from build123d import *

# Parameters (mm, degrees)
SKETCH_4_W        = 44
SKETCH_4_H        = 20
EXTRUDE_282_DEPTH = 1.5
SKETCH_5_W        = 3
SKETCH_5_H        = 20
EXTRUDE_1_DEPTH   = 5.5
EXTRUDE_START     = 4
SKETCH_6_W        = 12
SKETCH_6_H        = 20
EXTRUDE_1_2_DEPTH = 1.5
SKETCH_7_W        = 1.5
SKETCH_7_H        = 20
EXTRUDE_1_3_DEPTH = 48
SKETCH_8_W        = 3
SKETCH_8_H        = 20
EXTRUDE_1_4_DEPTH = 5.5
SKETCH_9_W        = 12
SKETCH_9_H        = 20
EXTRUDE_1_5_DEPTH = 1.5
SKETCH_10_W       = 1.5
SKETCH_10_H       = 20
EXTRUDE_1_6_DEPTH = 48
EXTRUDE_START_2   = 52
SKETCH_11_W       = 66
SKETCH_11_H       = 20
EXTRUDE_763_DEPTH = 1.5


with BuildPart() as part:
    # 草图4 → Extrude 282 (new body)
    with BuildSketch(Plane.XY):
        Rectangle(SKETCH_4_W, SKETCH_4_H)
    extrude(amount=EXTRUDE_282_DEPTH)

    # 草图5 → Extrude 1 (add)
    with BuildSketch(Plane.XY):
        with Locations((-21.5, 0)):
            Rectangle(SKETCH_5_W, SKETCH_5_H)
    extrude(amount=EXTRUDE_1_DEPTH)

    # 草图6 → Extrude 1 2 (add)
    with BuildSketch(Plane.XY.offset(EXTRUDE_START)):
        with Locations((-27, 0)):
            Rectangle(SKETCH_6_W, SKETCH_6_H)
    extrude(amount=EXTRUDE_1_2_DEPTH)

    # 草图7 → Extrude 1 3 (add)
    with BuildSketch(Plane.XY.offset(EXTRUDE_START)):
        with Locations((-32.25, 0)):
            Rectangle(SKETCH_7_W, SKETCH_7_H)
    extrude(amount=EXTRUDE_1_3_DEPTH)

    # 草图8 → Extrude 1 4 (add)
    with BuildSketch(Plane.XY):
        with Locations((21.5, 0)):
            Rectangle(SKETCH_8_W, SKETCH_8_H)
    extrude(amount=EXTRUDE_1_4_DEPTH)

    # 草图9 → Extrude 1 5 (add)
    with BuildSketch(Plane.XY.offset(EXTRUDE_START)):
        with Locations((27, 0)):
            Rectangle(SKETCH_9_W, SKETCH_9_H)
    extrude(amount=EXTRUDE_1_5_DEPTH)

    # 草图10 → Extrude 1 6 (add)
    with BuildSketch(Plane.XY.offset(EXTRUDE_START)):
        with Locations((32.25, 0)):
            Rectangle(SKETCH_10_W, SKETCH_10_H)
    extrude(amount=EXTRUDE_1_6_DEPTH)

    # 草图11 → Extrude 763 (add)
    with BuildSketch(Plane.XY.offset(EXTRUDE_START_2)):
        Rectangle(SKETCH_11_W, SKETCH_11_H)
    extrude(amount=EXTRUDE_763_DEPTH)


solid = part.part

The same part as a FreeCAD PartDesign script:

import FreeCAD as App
import Part
import Sketcher
Q = App.Units.Quantity


def add_polygon(sketch, points):
    """Adds a closed chain of lines whose ends are joined by coincident constraints."""
    first, n = sketch.GeometryCount, len(points)
    for a, b in zip(points, points[1:] + points[:1]):
        sketch.addGeometry(Part.LineSegment(App.Vector(*a, 0), App.Vector(*b, 0)), False)
    for i in range(n):
        sketch.addConstraint(Sketcher.Constraint("Coincident", first + i, 2, first + (i + 1) % n, 1))

doc = App.newDocument("Part")
params = doc.addObject("Spreadsheet::Sheet", "Params")
for row, (alias, value) in enumerate([
    ("sketch1_width", "44 mm"),
    ("sketch1_height", "20 mm"),
    ("pad1_length", "1.5 mm"),
    ("sketch2_width", "3 mm"),
    ("sketch2_height", "20 mm"),
    ("pad2_length", "5.5 mm"),
    ("sketch3_width", "12 mm"),
    ("sketch3_height", "20 mm"),
    ("pad3_length", "1.5 mm"),
    ("sketch4_height", "20 mm"),
    ("sketch4_width", "1.5 mm"),
    ("pad4_length", "48 mm"),
    ("sketch5_width", "3 mm"),
    ("sketch5_height", "20 mm"),
    ("pad5_length", "5.5 mm"),
    ("sketch6_width", "12 mm"),
    ("sketch6_height", "20 mm"),
    ("pad6_length", "1.5 mm"),
    ("sketch7_height", "20 mm"),
    ("sketch7_width", "1.5 mm"),
    ("pad7_length", "48 mm"),
    ("sketch8_width", "66 mm"),
    ("sketch8_height", "20 mm"),
    ("pad8_length", "1.5 mm"),
], start=1):
    params.set(f"A{row}", alias)
    params.set(f"B{row}", "=" + value)
    params.setAlias(f"B{row}", alias)

body = doc.addObject("PartDesign::Body", "Body")

# Sketch on XY plane
sketch1 = body.newObject("Sketcher::SketchObject", "Sketch")
sketch1.AttachmentSupport = (doc.getObject("XY_Plane"), [""])
sketch1.MapMode = "FlatFace"
add_polygon(sketch1, [(-22, 10), (-22, -10), (22, -10), (22, 10)])  # lines 0-3
sketch1.addConstraint([
    Sketcher.Constraint("Vertical", 0),
    Sketcher.Constraint("Horizontal", 1),
    Sketcher.Constraint("Vertical", 2),
    Sketcher.Constraint("Horizontal", 3),
    Sketcher.Constraint("Symmetric", 0, 2, 2, 2, -1, 1),
    Sketcher.Constraint("DistanceX", 1, 1, 1, 2, Q("44 mm")),
    Sketcher.Constraint("DistanceY", 0, 2, 0, 1, Q("20 mm")),
])
sketch1.setExpression("Constraints[9]", "Params.sketch1_width")
sketch1.setExpression("Constraints[10]", "Params.sketch1_height")
pad1 = body.newObject("PartDesign::Pad", "Pad")
pad1.Profile = sketch1
pad1.setExpression("Length", "Params.pad1_length")

# Sketch on XY plane
sketch2 = body.newObject("Sketcher::SketchObject", "Sketch001")
sketch2.AttachmentSupport = (doc.getObject("XY_Plane"), [""])
sketch2.MapMode = "FlatFace"
add_polygon(sketch2, [(-23, 10), (-23, -10), (-20, -10), (-20, 10)])  # lines 0-3
sketch2.addConstraint([
    Sketcher.Constraint("Vertical", 0),
    Sketcher.Constraint("Horizontal", 1),
    Sketcher.Constraint("Vertical", 2),
    Sketcher.Constraint("Horizontal", 3),
    Sketcher.Constraint("DistanceX", 1, 1, 1, 2, Q("3 mm")),
    Sketcher.Constraint("DistanceY", 0, 2, 0, 1, Q("20 mm")),
    Sketcher.Constraint("DistanceX", 0, 2, -1, 1, Q("23 mm")),
    Sketcher.Constraint("DistanceY", 0, 2, -1, 1, Q("10 mm")),
])
sketch2.setExpression("Constraints[8]", "Params.sketch2_width")
sketch2.setExpression("Constraints[9]", "Params.sketch2_height")
pad2 = body.newObject("PartDesign::Pad", "Pad001")
pad2.Profile = sketch2
pad2.setExpression("Length", "Params.pad2_length")

# Sketch on XY plane
sketch3 = body.newObject("Sketcher::SketchObject", "Sketch002")
sketch3.AttachmentSupport = (doc.getObject("XY_Plane"), [""])
sketch3.MapMode = "FlatFace"
sketch3.AttachmentOffset = App.Placement(App.Vector(0, 0, 4), App.Rotation())
add_polygon(sketch3, [(-33, 10), (-33, -10), (-21, -10), (-21, 10)])  # lines 0-3
sketch3.addConstraint([
    Sketcher.Constraint("Vertical", 0),
    Sketcher.Constraint("Horizontal", 1),
    Sketcher.Constraint("Vertical", 2),
    Sketcher.Constraint("Horizontal", 3),
    Sketcher.Constraint("DistanceX", 1, 1, 1, 2, Q("12 mm")),
    Sketcher.Constraint("DistanceY", 0, 2, 0, 1, Q("20 mm")),
    Sketcher.Constraint("DistanceX", 0, 2, -1, 1, Q("33 mm")),
    Sketcher.Constraint("DistanceY", 0, 2, -1, 1, Q("10 mm")),
])
sketch3.setExpression("Constraints[8]", "Params.sketch3_width")
sketch3.setExpression("Constraints[9]", "Params.sketch3_height")
pad3 = body.newObject("PartDesign::Pad", "Pad002")
pad3.Profile = sketch3
pad3.setExpression("Length", "Params.pad3_length")

# Sketch on XY plane
sketch4 = body.newObject("Sketcher::SketchObject", "Sketch003")
sketch4.AttachmentSupport = (doc.getObject("XY_Plane"), [""])
sketch4.MapMode = "FlatFace"
sketch4.AttachmentOffset = App.Placement(App.Vector(0, 0, 4), App.Rotation())
add_polygon(sketch4, [(-33, 10), (-33, -10), (-31.5, -10), (-31.5, 10)])  # lines 0-3
sketch4.addConstraint([
    Sketcher.Constraint("Vertical", 0),
    Sketcher.Constraint("Horizontal", 1),
    Sketcher.Constraint("Vertical", 2),
    Sketcher.Constraint("Horizontal", 3),
    Sketcher.Constraint("DistanceY", 0, 2, 0, 1, Q("20 mm")),
    Sketcher.Constraint("DistanceX", 1, 1, 1, 2, Q("1.5 mm")),
    Sketcher.Constraint("DistanceX", 0, 2, -1, 1, Q("33 mm")),
    Sketcher.Constraint("DistanceY", 0, 2, -1, 1, Q("10 mm")),
])
sketch4.setExpression("Constraints[8]", "Params.sketch4_height")
sketch4.setExpression("Constraints[9]", "Params.sketch4_width")
pad4 = body.newObject("PartDesign::Pad", "Pad003")
pad4.Profile = sketch4
pad4.setExpression("Length", "Params.pad4_length")

# Sketch on XY plane
sketch5 = body.newObject("Sketcher::SketchObject", "Sketch004")
sketch5.AttachmentSupport = (doc.getObject("XY_Plane"), [""])
sketch5.MapMode = "FlatFace"
add_polygon(sketch5, [(20, 10), (20, -10), (23, -10), (23, 10)])  # lines 0-3
sketch5.addConstraint([
    Sketcher.Constraint("Vertical", 0),
    Sketcher.Constraint("Horizontal", 1),
    Sketcher.Constraint("Vertical", 2),
    Sketcher.Constraint("Horizontal", 3),
    Sketcher.Constraint("DistanceX", 1, 1, 1, 2, Q("3 mm")),
    Sketcher.Constraint("DistanceY", 0, 2, 0, 1, Q("20 mm")),
    Sketcher.Constraint("DistanceX", -1, 1, 0, 2, Q("20 mm")),
    Sketcher.Constraint("DistanceY", 0, 2, -1, 1, Q("10 mm")),
])
sketch5.setExpression("Constraints[8]", "Params.sketch5_width")
sketch5.setExpression("Constraints[9]", "Params.sketch5_height")
pad5 = body.newObject("PartDesign::Pad", "Pad004")
pad5.Profile = sketch5
pad5.setExpression("Length", "Params.pad5_length")

# Sketch on XY plane
sketch6 = body.newObject("Sketcher::SketchObject", "Sketch005")
sketch6.AttachmentSupport = (doc.getObject("XY_Plane"), [""])
sketch6.MapMode = "FlatFace"
sketch6.AttachmentOffset = App.Placement(App.Vector(0, 0, 4), App.Rotation())
add_polygon(sketch6, [(21, 10), (21, -10), (33, -10), (33, 10)])  # lines 0-3
sketch6.addConstraint([
    Sketcher.Constraint("Vertical", 0),
    Sketcher.Constraint("Horizontal", 1),
    Sketcher.Constraint("Vertical", 2),
    Sketcher.Constraint("Horizontal", 3),
    Sketcher.Constraint("DistanceX", 1, 1, 1, 2, Q("12 mm")),
    Sketcher.Constraint("DistanceY", 0, 2, 0, 1, Q("20 mm")),
    Sketcher.Constraint("DistanceX", -1, 1, 0, 2, Q("21 mm")),
    Sketcher.Constraint("DistanceY", 0, 2, -1, 1, Q("10 mm")),
])
sketch6.setExpression("Constraints[8]", "Params.sketch6_width")
sketch6.setExpression("Constraints[9]", "Params.sketch6_height")
pad6 = body.newObject("PartDesign::Pad", "Pad005")
pad6.Profile = sketch6
pad6.setExpression("Length", "Params.pad6_length")

# Sketch on XY plane
sketch7 = body.newObject("Sketcher::SketchObject", "Sketch006")
sketch7.AttachmentSupport = (doc.getObject("XY_Plane"), [""])
sketch7.MapMode = "FlatFace"
sketch7.AttachmentOffset = App.Placement(App.Vector(0, 0, 4), App.Rotation())
add_polygon(sketch7, [(31.5, 10), (31.5, -10), (33, -10), (33, 10)])  # lines 0-3
sketch7.addConstraint([
    Sketcher.Constraint("Vertical", 0),
    Sketcher.Constraint("Horizontal", 1),
    Sketcher.Constraint("Vertical", 2),
    Sketcher.Constraint("Horizontal", 3),
    Sketcher.Constraint("DistanceY", 0, 2, 0, 1, Q("20 mm")),
    Sketcher.Constraint("DistanceX", 1, 1, 1, 2, Q("1.5 mm")),
    Sketcher.Constraint("DistanceY", 0, 2, -1, 1, Q("10 mm")),
    Sketcher.Constraint("DistanceX", -1, 1, 1, 2, Q("33 mm")),
])
sketch7.setExpression("Constraints[8]", "Params.sketch7_height")
sketch7.setExpression("Constraints[9]", "Params.sketch7_width")
pad7 = body.newObject("PartDesign::Pad", "Pad006")
pad7.Profile = sketch7
pad7.setExpression("Length", "Params.pad7_length")

# Sketch on XY plane
sketch8 = body.newObject("Sketcher::SketchObject", "Sketch007")
sketch8.AttachmentSupport = (doc.getObject("XY_Plane"), [""])
sketch8.MapMode = "FlatFace"
sketch8.AttachmentOffset = App.Placement(App.Vector(0, 0, 52), App.Rotation())
add_polygon(sketch8, [(-33, 10), (-33, -10), (33, -10), (33, 10)])  # lines 0-3
sketch8.addConstraint([
    Sketcher.Constraint("Vertical", 0),
    Sketcher.Constraint("Horizontal", 1),
    Sketcher.Constraint("Vertical", 2),
    Sketcher.Constraint("Horizontal", 3),
    Sketcher.Constraint("Symmetric", 0, 2, 2, 2, -1, 1),
    Sketcher.Constraint("DistanceX", 1, 1, 1, 2, Q("66 mm")),
    Sketcher.Constraint("DistanceY", 0, 2, 0, 1, Q("20 mm")),
])
sketch8.setExpression("Constraints[9]", "Params.sketch8_width")
sketch8.setExpression("Constraints[10]", "Params.sketch8_height")
pad8 = body.newObject("PartDesign::Pad", "Pad007")
pad8.Profile = sketch8
pad8.setExpression("Length", "Params.pad8_length")

doc.recompute()
